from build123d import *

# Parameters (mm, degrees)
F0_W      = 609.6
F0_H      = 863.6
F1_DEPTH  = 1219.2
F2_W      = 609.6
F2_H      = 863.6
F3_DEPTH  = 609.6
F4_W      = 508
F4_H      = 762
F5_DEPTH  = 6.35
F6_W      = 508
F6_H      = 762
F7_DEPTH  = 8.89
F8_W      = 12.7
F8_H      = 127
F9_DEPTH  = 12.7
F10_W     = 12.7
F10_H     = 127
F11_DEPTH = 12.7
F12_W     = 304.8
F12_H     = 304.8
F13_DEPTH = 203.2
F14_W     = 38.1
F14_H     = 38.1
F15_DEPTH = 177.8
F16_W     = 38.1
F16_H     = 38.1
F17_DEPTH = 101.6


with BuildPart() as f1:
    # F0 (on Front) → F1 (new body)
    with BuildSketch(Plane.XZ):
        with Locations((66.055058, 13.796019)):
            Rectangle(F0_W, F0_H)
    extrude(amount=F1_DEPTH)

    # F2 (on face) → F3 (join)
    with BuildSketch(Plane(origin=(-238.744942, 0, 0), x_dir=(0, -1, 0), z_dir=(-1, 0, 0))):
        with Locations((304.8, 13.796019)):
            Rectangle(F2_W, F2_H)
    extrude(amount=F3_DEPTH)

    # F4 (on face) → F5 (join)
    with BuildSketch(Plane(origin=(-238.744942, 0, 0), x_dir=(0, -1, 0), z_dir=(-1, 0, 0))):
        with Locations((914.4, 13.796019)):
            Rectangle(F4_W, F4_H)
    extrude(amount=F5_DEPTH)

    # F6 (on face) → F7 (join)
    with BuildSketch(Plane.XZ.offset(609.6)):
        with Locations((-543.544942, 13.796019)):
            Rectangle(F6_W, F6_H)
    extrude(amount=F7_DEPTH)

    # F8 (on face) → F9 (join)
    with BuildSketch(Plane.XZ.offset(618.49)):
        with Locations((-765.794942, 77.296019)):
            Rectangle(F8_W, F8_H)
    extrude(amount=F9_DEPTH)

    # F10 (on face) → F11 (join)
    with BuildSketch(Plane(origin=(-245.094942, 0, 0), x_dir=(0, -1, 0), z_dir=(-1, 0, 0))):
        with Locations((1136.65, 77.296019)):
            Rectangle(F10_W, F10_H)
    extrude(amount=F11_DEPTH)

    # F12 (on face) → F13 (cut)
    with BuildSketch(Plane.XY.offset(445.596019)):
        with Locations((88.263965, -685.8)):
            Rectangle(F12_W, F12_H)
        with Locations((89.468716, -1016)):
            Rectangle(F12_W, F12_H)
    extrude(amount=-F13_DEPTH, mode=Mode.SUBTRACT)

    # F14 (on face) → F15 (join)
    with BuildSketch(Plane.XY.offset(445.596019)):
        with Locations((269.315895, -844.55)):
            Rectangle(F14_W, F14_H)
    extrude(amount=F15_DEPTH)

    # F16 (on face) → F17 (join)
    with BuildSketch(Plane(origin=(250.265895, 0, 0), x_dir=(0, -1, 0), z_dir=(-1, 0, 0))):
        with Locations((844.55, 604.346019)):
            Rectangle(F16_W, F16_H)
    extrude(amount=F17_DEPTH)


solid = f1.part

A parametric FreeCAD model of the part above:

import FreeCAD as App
import Part
import Sketcher
Q = App.Units.Quantity


def add_polygon(sketch, points):
    """Adds a closed chain of lines whose ends are joined by coincident constraints."""
    first, n = sketch.GeometryCount, len(points)
    for a, b in zip(points, points[1:] + points[:1]):
        sketch.addGeometry(Part.LineSegment(App.Vector(*a, 0), App.Vector(*b, 0)), False)
    for i in range(n):
        sketch.addConstraint(Sketcher.Constraint("Coincident", first + i, 2, first + (i + 1) % n, 1))

doc = App.newDocument("Part")
body = doc.addObject("PartDesign::Body", "Body")

sketch1 = body.newObject("Sketcher::SketchObject", "Sketch")
sketch1.AttachmentSupport = (doc.getObject("XZ_Plane"), [""])
sketch1.MapMode = "FlatFace"
add_polygon(sketch1, [(-239, 446), (-239, -418), (371, -418), (371, 446)])
sketch1.addConstraint([
    Sketcher.Constraint("Vertical", 0),
    Sketcher.Constraint("Horizontal", 1),
    Sketcher.Constraint("Vertical", 2),
    Sketcher.Constraint("Horizontal", 3),
    Sketcher.Constraint("DistanceX", 1, 1, 1, 2, Q("24 in")),
    Sketcher.Constraint("DistanceY", 0, 2, 0, 1, Q("34 in")),
    Sketcher.Constraint("DistanceX", 0, 2, -1, 1, 238.744942),
    Sketcher.Constraint("DistanceY", 0, 2, -1, 1, 418.003981),
])
pad1 = body.newObject("PartDesign::Pad", "Pad")
pad1.Profile = sketch1
pad1.Length = Q("48 in")

sketch2 = body.newObject("Sketcher::SketchObject", "Sketch001")
sketch2.AttachmentSupport = (doc.getObject("YZ_Plane"), [""])
sketch2.MapMode = "FlatFace"
sketch2.AttachmentOffset = App.Placement(App.Vector(0, 0, -238.744942), App.Rotation())
add_polygon(sketch2, [(0, 446), (0, -418), (-610, -418), (-610, 446)])
sketch2.addConstraint([
    Sketcher.Constraint("Vertical", 0),
    Sketcher.Constraint("Horizontal", 1),
    Sketcher.Constraint("Vertical", 2),
    Sketcher.Constraint("Horizontal", 3),
    Sketcher.Constraint("PointOnObject", 0, 2, -2),
    Sketcher.Constraint("DistanceX", 1, 2, 1, 1, Q("24 in")),
    Sketcher.Constraint("DistanceY", 0, 2, 0, 1, Q("34 in")),
    Sketcher.Constraint("DistanceY", 0, 2, -1, 1, 418.003981),
])
pad2 = body.newObject("PartDesign::Pad", "Pad001")
pad2.Profile = sketch2
pad2.Length = Q("24 in")
pad2.Reversed = True

sketch3 = body.newObject("Sketcher::SketchObject", "Sketch002")
sketch3.AttachmentSupport = (doc.getObject("YZ_Plane"), [""])
sketch3.MapMode = "FlatFace"
sketch3.AttachmentOffset = App.Placement(App.Vector(0, 0, -238.744942), App.Rotation())
add_polygon(sketch3, [(-660, 395), (-660, -367), (-1168, -367), (-1168, 395)])
sketch3.addConstraint([
    Sketcher.Constraint("Vertical", 0),
    Sketcher.Constraint("Horizontal", 1),
    Sketcher.Constraint("Vertical", 2),
    Sketcher.Constraint("Horizontal", 3),
    Sketcher.Constraint("DistanceX", 1, 2, 1, 1, Q("20 in")),
    Sketcher.Constraint("DistanceY", 0, 2, 0, 1, Q("30 in")),
    Sketcher.Constraint("DistanceX", 0, 2, -1, 1, Q("26 in")),
    Sketcher.Constraint("DistanceY", 0, 2, -1, 1, 367.203981),
])
pad3 = body.newObject("PartDesign::Pad", "Pad002")
pad3.Profile = sketch3
pad3.Length = Q("0.25 in")
pad3.Reversed = True

sketch4 = body.newObject("Sketcher::SketchObject", "Sketch003")
sketch4.AttachmentSupport = (doc.getObject("XZ_Plane"), [""])
sketch4.MapMode = "FlatFace"
sketch4.AttachmentOffset = App.Placement(App.Vector(0, 0, 24 * 25.4), App.Rotation())
add_polygon(sketch4, [(-798, 395), (-798, -367), (-290, -367), (-290, 395)])
sketch4.addConstraint([
    Sketcher.Constraint("Vertical", 0),
    Sketcher.Constraint("Horizontal", 1),
    Sketcher.Constraint("Vertical", 2),
    Sketcher.Constraint("Horizontal", 3),
    Sketcher.Constraint("DistanceX", 1, 1, 1, 2, Q("20 in")),
    Sketcher.Constraint("DistanceY", 0, 2, 0, 1, Q("30 in")),
    Sketcher.Constraint("DistanceX", 0, 2, -1, 1, 797.544942),
    Sketcher.Constraint("DistanceY", 0, 2, -1, 1, 367.203981),
])
pad4 = body.newObject("PartDesign::Pad", "Pad003")
pad4.Profile = sketch4
pad4.Length = Q("0.35 in")

sketch5 = body.newObject("Sketcher::SketchObject", "Sketch004")
sketch5.AttachmentSupport = (doc.getObject("XZ_Plane"), [""])
sketch5.MapMode = "FlatFace"
sketch5.AttachmentOffset = App.Placement(App.Vector(0, 0, 24.35 * 25.4), App.Rotation())
add_polygon(sketch5, [(-772, 141), (-772, 14), (-759, 14), (-759, 141)])
sketch5.addConstraint([
    Sketcher.Constraint("Vertical", 0),
    Sketcher.Constraint("Horizontal", 1),
    Sketcher.Constraint("Vertical", 2),
    Sketcher.Constraint("Horizontal", 3),
    Sketcher.Constraint("DistanceY", 0, 2, 0, 1, Q("5 in")),
    Sketcher.Constraint("DistanceX", 1, 1, 1, 2, Q("0.5 in")),
    Sketcher.Constraint("DistanceX", 0, 2, -1, 1, 772.144942),
    Sketcher.Constraint("DistanceY", -1, 1, 0, 2, 13.796019),
])
pad5 = body.newObject("PartDesign::Pad", "Pad004")
pad5.Profile = sketch5
pad5.Length = Q("0.5 in")

sketch6 = body.newObject("Sketcher::SketchObject", "Sketch005")
sketch6.AttachmentSupport = (doc.getObject("YZ_Plane"), [""])
sketch6.MapMode = "FlatFace"
sketch6.AttachmentOffset = App.Placement(App.Vector(0, 0, -245.094942), App.Rotation())
add_polygon(sketch6, [(-1130, 141), (-1130, 14), (-1143, 14), (-1143, 141)])
sketch6.addConstraint([
    Sketcher.Constraint("Vertical", 0),
    Sketcher.Constraint("Horizontal", 1),
    Sketcher.Constraint("Vertical", 2),
    Sketcher.Constraint("Horizontal", 3),
    Sketcher.Constraint("DistanceY", 0, 2, 0, 1, Q("5 in")),
    Sketcher.Constraint("DistanceX", 1, 2, 1, 1, Q("0.5 in")),
    Sketcher.Constraint("DistanceX", 1, 2, -1, 1, Q("45 in")),
    Sketcher.Constraint("DistanceY", -1, 1, 0, 2, 13.796019),
])
pad6 = body.newObject("PartDesign::Pad", "Pad005")
pad6.Profile = sketch6
pad6.Length = Q("0.5 in")
pad6.Reversed = True

sketch7 = body.newObject("Sketcher::SketchObject", "Sketch006")
sketch7.AttachmentSupport = (doc.getObject("XY_Plane"), [""])
sketch7.MapMode = "FlatFace"
sketch7.AttachmentOffset = App.Placement(App.Vector(0, 0, 445.596019), App.Rotation())
add_polygon(sketch7, [(-64, -533), (-64, -838), (241, -838), (241, -533)])
add_polygon(sketch7, [(-63, -864), (-63, -1168), (242, -1168), (242, -864)])
sketch7.addConstraint([
    Sketcher.Constraint("Vertical", 0),
    Sketcher.Constraint("Horizontal", 1),
    Sketcher.Constraint("Vertical", 2),
    Sketcher.Constraint("Horizontal", 3),
    Sketcher.Constraint("Vertical", 4),
    Sketcher.Constraint("Horizontal", 5),
    Sketcher.Constraint("Vertical", 6),
    Sketcher.Constraint("Horizontal", 7),
    Sketcher.Constraint("Equal", 3, 5),
    Sketcher.Constraint("Equal", 7, 0),
    Sketcher.Constraint("Equal", 2, 4),
    Sketcher.Constraint("DistanceX", 1, 1, 1, 2, Q("12 in")),
    Sketcher.Constraint("DistanceY", 0, 2, -1, 1, Q("33 in")),
    Sketcher.Constraint("DistanceY", 4, 2, -1, 1, Q("46 in")),
    Sketcher.Constraint("DistanceX", 0, 2, 4, 2, 1.204751),
    Sketcher.Constraint("DistanceX", 0, 2, -1, 1, 64.136035),
])
pocket1 = body.newObject("PartDesign::Pocket", "Pocket")
pocket1.Profile = sketch7
pocket1.Length = Q("8 in")

sketch8 = body.newObject("Sketcher::SketchObject", "Sketch007")
sketch8.AttachmentSupport = (doc.getObject("XY_Plane"), [""])
sketch8.MapMode = "FlatFace"
sketch8.AttachmentOffset = App.Placement(App.Vector(0, 0, 445.596019), App.Rotation())
add_polygon(sketch8, [(250, -826), (250, -864), (288, -864), (288, -826)])
sketch8.addConstraint([
    Sketcher.Constraint("Vertical", 0),
    Sketcher.Constraint("Horizontal", 1),
    Sketcher.Constraint("Vertical", 2),
    Sketcher.Constraint("Horizontal", 3),
    Sketcher.Constraint("Equal", 3, 0),
    Sketcher.Constraint("DistanceX", 1, 1, 1, 2, Q("1.5 in")),
    Sketcher.Constraint("DistanceY", 0, 2, -1, 1, Q("34 in")),
    Sketcher.Constraint("DistanceX", -1, 1, 0, 2, 250.265895),
])
pad7 = body.newObject("PartDesign::Pad", "Pad006")
pad7.Profile = sketch8
pad7.Length = Q("7 in")

sketch9 = body.newObject("Sketcher::SketchObject", "Sketch008")
sketch9.AttachmentSupport = (doc.getObject("YZ_Plane"), [""])
sketch9.MapMode = "FlatFace"
sketch9.AttachmentOffset = App.Placement(App.Vector(0, 0, 250.265895), App.Rotation())
add_polygon(sketch9, [(-826, 623), (-826, 585), (-864, 585), (-864, 623)])
sketch9.addConstraint([
    Sketcher.Constraint("Vertical", 0),
    Sketcher.Constraint("Horizontal", 1),
    Sketcher.Constraint("Vertical", 2),
    Sketcher.Constraint("Horizontal", 3),
    Sketcher.Constraint("Equal", 3, 0),
    Sketcher.Constraint("DistanceX", 1, 2, 1, 1, Q("1.5 in")),
    Sketcher.Constraint("DistanceX", 1, 2, -1, 1, Q("34 in")),
    Sketcher.Constraint("DistanceY", -1, 1, 0, 2, 585.296019),
])
pad8 = body.newObject("PartDesign::Pad", "Pad007")
pad8.Profile = sketch9
pad8.Length = Q("4 in")
pad8.Reversed = True

doc.recompute()
